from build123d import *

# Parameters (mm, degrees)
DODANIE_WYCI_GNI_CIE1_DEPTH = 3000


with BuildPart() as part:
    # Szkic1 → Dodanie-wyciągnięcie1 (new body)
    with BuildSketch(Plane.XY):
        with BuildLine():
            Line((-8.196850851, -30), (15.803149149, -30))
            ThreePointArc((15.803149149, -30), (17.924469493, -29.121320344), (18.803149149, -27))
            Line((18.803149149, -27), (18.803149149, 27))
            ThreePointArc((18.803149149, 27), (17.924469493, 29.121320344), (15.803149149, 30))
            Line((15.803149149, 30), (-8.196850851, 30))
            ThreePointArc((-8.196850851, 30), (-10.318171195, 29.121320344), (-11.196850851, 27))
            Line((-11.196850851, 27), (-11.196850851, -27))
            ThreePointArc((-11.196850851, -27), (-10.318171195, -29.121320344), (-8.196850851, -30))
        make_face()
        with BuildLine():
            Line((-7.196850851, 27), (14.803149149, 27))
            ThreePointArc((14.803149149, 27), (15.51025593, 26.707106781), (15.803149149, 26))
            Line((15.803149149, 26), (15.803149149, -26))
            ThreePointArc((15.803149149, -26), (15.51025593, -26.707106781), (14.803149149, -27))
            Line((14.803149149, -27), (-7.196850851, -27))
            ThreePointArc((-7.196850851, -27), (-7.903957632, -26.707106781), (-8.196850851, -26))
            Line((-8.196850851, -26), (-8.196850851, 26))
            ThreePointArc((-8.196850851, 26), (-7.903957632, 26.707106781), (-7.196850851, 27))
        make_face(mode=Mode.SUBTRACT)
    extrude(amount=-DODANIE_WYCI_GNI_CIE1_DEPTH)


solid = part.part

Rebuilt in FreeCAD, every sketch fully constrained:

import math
import FreeCAD as App
import Part
import Sketcher

V = App.Vector

doc = App.newDocument("Part")
body = doc.addObject("PartDesign::Body", "Body")

# Sketch on XY plane
sketch1 = body.newObject("Sketcher::SketchObject", "Sketch")
sketch1.AttachmentSupport = (doc.getObject("XY_Plane"), [""])
sketch1.MapMode = "FlatFace"
sketch1.addGeometry(Part.LineSegment(V(-8.196851, -30, 0), V(15.803149, -30, 0)), False)
sketch1.addGeometry(Part.ArcOfCircle(Part.Circle(V(15.803149, -27, 0), V(0, 0, 1), 3), math.radians(-90), math.radians(0)), False)
sketch1.addGeometry(Part.LineSegment(V(18.803149, -27, 0), V(18.803149, 27, 0)), False)
sketch1.addGeometry(Part.ArcOfCircle(Part.Circle(V(15.803149, 27, 0), V(0, 0, 1), 3), math.radians(0), math.radians(90)), False)
sketch1.addGeometry(Part.LineSegment(V(15.803149, 30, 0), V(-8.196851, 30, 0)), False)
sketch1.addGeometry(Part.ArcOfCircle(Part.Circle(V(-8.196851, 27, 0), V(0, 0, 1), 3), math.radians(90), math.radians(180)), False)
sketch1.addGeometry(Part.LineSegment(V(-11.196851, 27, 0), V(-11.196851, -27, 0)), False)
sketch1.addGeometry(Part.ArcOfCircle(Part.Circle(V(-8.196851, -27, 0), V(0, 0, 1), 3), math.radians(180), math.radians(270)), False)
sketch1.addGeometry(Part.ArcOfCircle(Part.Circle(V(-7.196851, 26, 0), V(0, 0, 1), 1), math.radians(90), math.radians(180)), False)
sketch1.addGeometry(Part.LineSegment(V(-7.196851, 27, 0), V(14.803149, 27, 0)), False)
sketch1.addGeometry(Part.ArcOfCircle(Part.Circle(V(14.803149, 26, 0), V(0, 0, 1), 1), math.radians(0), math.radians(90)), False)
sketch1.addGeometry(Part.LineSegment(V(15.803149, 26, 0), V(15.803149, -26, 0)), False)
sketch1.addGeometry(Part.ArcOfCircle(Part.Circle(V(14.803149, -26, 0), V(0, 0, 1), 1), math.radians(-90), math.radians(0)), False)
sketch1.addGeometry(Part.LineSegment(V(14.803149, -27, 0), V(-7.196851, -27, 0)), False)
sketch1.addGeometry(Part.ArcOfCircle(Part.Circle(V(-7.196851, -26, 0), V(0, 0, 1), 1), math.radians(-180), math.radians(-90)), False)
sketch1.addGeometry(Part.LineSegment(V(-8.196851, -26, 0), V(-8.196851, 26, 0)), False)
sketch1.addConstraint(Sketcher.Constraint("Tangent", 0, 2, 1, 1))
sketch1.addConstraint(Sketcher.Constraint("Tangent", 1, 2, 2, 1))
sketch1.addConstraint(Sketcher.Constraint("Tangent", 2, 2, 3, 1))
sketch1.addConstraint(Sketcher.Constraint("Tangent", 3, 2, 4, 1))
sketch1.addConstraint(Sketcher.Constraint("Tangent", 4, 2, 5, 1))
sketch1.addConstraint(Sketcher.Constraint("Tangent", 5, 2, 6, 1))
sketch1.addConstraint(Sketcher.Constraint("Tangent", 6, 2, 7, 1))
sketch1.addConstraint(Sketcher.Constraint("Tangent", 7, 2, 0, 1))
sketch1.addConstraint(Sketcher.Constraint("Tangent", 8, 1, 9, 1))
sketch1.addConstraint(Sketcher.Constraint("Tangent", 9, 2, 10, 2))
sketch1.addConstraint(Sketcher.Constraint("Tangent", 10, 1, 11, 1))
sketch1.addConstraint(Sketcher.Constraint("Tangent", 11, 2, 12, 2))
sketch1.addConstraint(Sketcher.Constraint("Tangent", 12, 1, 13, 1))
sketch1.addConstraint(Sketcher.Constraint("Tangent", 13, 2, 14, 2))
sketch1.addConstraint(Sketcher.Constraint("Tangent", 14, 1, 15, 1))
sketch1.addConstraint(Sketcher.Constraint("Tangent", 15, 2, 8, 2))
sketch1.addConstraint(Sketcher.Constraint("Horizontal", 0))
sketch1.addConstraint(Sketcher.Constraint("Vertical", 2))
sketch1.addConstraint(Sketcher.Constraint("Horizontal", 4))
sketch1.addConstraint(Sketcher.Constraint("Vertical", 6))
sketch1.addConstraint(Sketcher.Constraint("Horizontal", 9))
sketch1.addConstraint(Sketcher.Constraint("Vertical", 11))
sketch1.addConstraint(Sketcher.Constraint("Horizontal", 13))
sketch1.addConstraint(Sketcher.Constraint("Vertical", 15))
sketch1.addConstraint(Sketcher.Constraint("Equal", 1, 3))
sketch1.addConstraint(Sketcher.Constraint("Equal", 3, 5))
sketch1.addConstraint(Sketcher.Constraint("Equal", 5, 7))
sketch1.addConstraint(Sketcher.Constraint("Equal", 8, 10))
sketch1.addConstraint(Sketcher.Constraint("Equal", 10, 12))
sketch1.addConstraint(Sketcher.Constraint("Equal", 12, 14))
sketch1.addConstraint(Sketcher.Constraint("Horizontal", 5, 2, 8, 1))
sketch1.addConstraint(Sketcher.Constraint("Horizontal", 6, 2, 12, 1))
sketch1.addConstraint(Sketcher.Constraint("Vertical", 3, 2, 10, 1))
sketch1.addConstraint(Sketcher.Constraint("Vertical", 7, 2, 14, 1))
sketch1.addConstraint(Sketcher.Constraint("Radius", 1, 3.0))
sketch1.addConstraint(Sketcher.Constraint("Radius", 8, 1.0))
sketch1.addConstraint(Sketcher.Constraint("DistanceX", 0, 1, 0, 2, 24.0))
sketch1.addConstraint(Sketcher.Constraint("DistanceY", 2, 1, 2, 2, 54.0))
sketch1.addConstraint(Sketcher.Constraint("DistanceY", 1, 3, -1, 1, 27.0))
sketch1.addConstraint(Sketcher.Constraint("DistanceX", -1, 1, 1, 3, 15.803149))
pad1 = body.newObject("PartDesign::Pad", "Pad")
pad1.Profile = sketch1
pad1.Length = 3000
pad1.Reversed = True

doc.recompute()
